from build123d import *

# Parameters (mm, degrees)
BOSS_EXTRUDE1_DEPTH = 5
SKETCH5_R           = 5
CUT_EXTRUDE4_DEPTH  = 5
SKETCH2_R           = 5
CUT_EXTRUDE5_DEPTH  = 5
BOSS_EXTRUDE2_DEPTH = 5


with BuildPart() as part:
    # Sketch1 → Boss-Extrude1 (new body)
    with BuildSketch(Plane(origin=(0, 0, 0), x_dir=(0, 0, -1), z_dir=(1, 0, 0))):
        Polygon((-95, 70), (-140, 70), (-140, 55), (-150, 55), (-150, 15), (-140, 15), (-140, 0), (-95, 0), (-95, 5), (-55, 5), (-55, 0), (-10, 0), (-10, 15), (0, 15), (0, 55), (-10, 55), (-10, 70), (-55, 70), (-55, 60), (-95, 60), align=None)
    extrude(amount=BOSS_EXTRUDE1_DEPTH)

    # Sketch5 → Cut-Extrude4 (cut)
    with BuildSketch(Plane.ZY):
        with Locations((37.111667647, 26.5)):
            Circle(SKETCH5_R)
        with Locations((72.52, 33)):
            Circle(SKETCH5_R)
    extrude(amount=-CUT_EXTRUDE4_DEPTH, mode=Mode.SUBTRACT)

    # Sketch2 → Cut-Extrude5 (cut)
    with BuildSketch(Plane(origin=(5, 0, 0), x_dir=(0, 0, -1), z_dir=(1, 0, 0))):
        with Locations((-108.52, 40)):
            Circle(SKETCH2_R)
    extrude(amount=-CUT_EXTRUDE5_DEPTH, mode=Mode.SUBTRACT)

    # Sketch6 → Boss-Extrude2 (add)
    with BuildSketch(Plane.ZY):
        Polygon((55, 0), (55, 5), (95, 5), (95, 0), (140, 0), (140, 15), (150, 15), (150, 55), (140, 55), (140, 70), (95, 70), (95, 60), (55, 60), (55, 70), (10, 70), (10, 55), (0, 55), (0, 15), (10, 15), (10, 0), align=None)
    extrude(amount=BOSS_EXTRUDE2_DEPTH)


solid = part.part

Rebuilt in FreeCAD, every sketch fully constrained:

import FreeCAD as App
import Part
import Sketcher
Q = App.Units.Quantity

doc = App.newDocument("Part")
body = doc.addObject("PartDesign::Body", "Body")

# Sketch on YZ plane
sketch1 = body.newObject("Sketcher::SketchObject", "Sketch")
sketch1.AttachmentSupport = (doc.getObject("YZ_Plane"), [""])
sketch1.MapMode = "FlatFace"
sketch1.addGeometry(Part.LineSegment(App.Vector(70, 95, 0), App.Vector(70, 140, 0)), False)
sketch1.addGeometry(Part.LineSegment(App.Vector(70, 140, 0), App.Vector(55, 140, 0)), False)
sketch1.addGeometry(Part.LineSegment(App.Vector(55, 140, 0), App.Vector(55, 150, 0)), False)
sketch1.addGeometry(Part.LineSegment(App.Vector(55, 150, 0), App.Vector(15, 150, 0)), False)
sketch1.addGeometry(Part.LineSegment(App.Vector(15, 150, 0), App.Vector(15, 140, 0)), False)
sketch1.addGeometry(Part.LineSegment(App.Vector(15, 140, 0), App.Vector(0, 140, 0)), False)
sketch1.addGeometry(Part.LineSegment(App.Vector(0, 140, 0), App.Vector(0, 95, 0)), False)
sketch1.addGeometry(Part.LineSegment(App.Vector(0, 95, 0), App.Vector(5, 95, 0)), False)
sketch1.addGeometry(Part.LineSegment(App.Vector(5, 95, 0), App.Vector(5, 55, 0)), False)
sketch1.addGeometry(Part.LineSegment(App.Vector(5, 55, 0), App.Vector(0, 55, 0)), False)
sketch1.addGeometry(Part.LineSegment(App.Vector(0, 55, 0), App.Vector(0, 10, 0)), False)
sketch1.addGeometry(Part.LineSegment(App.Vector(0, 10, 0), App.Vector(15, 10, 0)), False)
sketch1.addGeometry(Part.LineSegment(App.Vector(15, 10, 0), App.Vector(15, 0, 0)), False)
sketch1.addGeometry(Part.LineSegment(App.Vector(15, 0, 0), App.Vector(55, 0, 0)), False)
sketch1.addGeometry(Part.LineSegment(App.Vector(55, 0, 0), App.Vector(55, 10, 0)), False)
sketch1.addGeometry(Part.LineSegment(App.Vector(55, 10, 0), App.Vector(70, 10, 0)), False)
sketch1.addGeometry(Part.LineSegment(App.Vector(70, 10, 0), App.Vector(70, 55, 0)), False)
sketch1.addGeometry(Part.LineSegment(App.Vector(70, 55, 0), App.Vector(60, 55, 0)), False)
sketch1.addGeometry(Part.LineSegment(App.Vector(60, 55, 0), App.Vector(60, 95, 0)), False)
sketch1.addGeometry(Part.LineSegment(App.Vector(60, 95, 0), App.Vector(70, 95, 0)), False)
sketch1.addConstraint(Sketcher.Constraint("Coincident", 0, 2, 1, 1))
sketch1.addConstraint(Sketcher.Constraint("Coincident", 1, 2, 2, 1))
sketch1.addConstraint(Sketcher.Constraint("Coincident", 2, 2, 3, 1))
sketch1.addConstraint(Sketcher.Constraint("Coincident", 3, 2, 4, 1))
sketch1.addConstraint(Sketcher.Constraint("Coincident", 4, 2, 5, 1))
sketch1.addConstraint(Sketcher.Constraint("Coincident", 5, 2, 6, 1))
sketch1.addConstraint(Sketcher.Constraint("Coincident", 6, 2, 7, 1))
sketch1.addConstraint(Sketcher.Constraint("Coincident", 7, 2, 8, 1))
sketch1.addConstraint(Sketcher.Constraint("Coincident", 8, 2, 9, 1))
sketch1.addConstraint(Sketcher.Constraint("Coincident", 9, 2, 10, 1))
sketch1.addConstraint(Sketcher.Constraint("Coincident", 10, 2, 11, 1))
sketch1.addConstraint(Sketcher.Constraint("Coincident", 11, 2, 12, 1))
sketch1.addConstraint(Sketcher.Constraint("Coincident", 12, 2, 13, 1))
sketch1.addConstraint(Sketcher.Constraint("Coincident", 13, 2, 14, 1))
sketch1.addConstraint(Sketcher.Constraint("Coincident", 14, 2, 15, 1))
sketch1.addConstraint(Sketcher.Constraint("Coincident", 15, 2, 16, 1))
sketch1.addConstraint(Sketcher.Constraint("Coincident", 16, 2, 17, 1))
sketch1.addConstraint(Sketcher.Constraint("Coincident", 17, 2, 18, 1))
sketch1.addConstraint(Sketcher.Constraint("Coincident", 18, 2, 19, 1))
sketch1.addConstraint(Sketcher.Constraint("Coincident", 19, 2, 0, 1))
sketch1.addConstraint(Sketcher.Constraint("Vertical", 0))
sketch1.addConstraint(Sketcher.Constraint("Horizontal", 1))
sketch1.addConstraint(Sketcher.Constraint("Vertical", 2))
sketch1.addConstraint(Sketcher.Constraint("Horizontal", 3))
sketch1.addConstraint(Sketcher.Constraint("Vertical", 4))
sketch1.addConstraint(Sketcher.Constraint("Horizontal", 5))
sketch1.addConstraint(Sketcher.Constraint("Vertical", 6))
sketch1.addConstraint(Sketcher.Constraint("Horizontal", 7))
sketch1.addConstraint(Sketcher.Constraint("Vertical", 8))
sketch1.addConstraint(Sketcher.Constraint("Horizontal", 9))
sketch1.addConstraint(Sketcher.Constraint("Vertical", 10))
sketch1.addConstraint(Sketcher.Constraint("Horizontal", 11))
sketch1.addConstraint(Sketcher.Constraint("Vertical", 12))
sketch1.addConstraint(Sketcher.Constraint("Horizontal", 13))
sketch1.addConstraint(Sketcher.Constraint("Vertical", 14))
sketch1.addConstraint(Sketcher.Constraint("Horizontal", 15))
sketch1.addConstraint(Sketcher.Constraint("Vertical", 16))
sketch1.addConstraint(Sketcher.Constraint("Horizontal", 17))
sketch1.addConstraint(Sketcher.Constraint("Vertical", 18))
sketch1.addConstraint(Sketcher.Constraint("Horizontal", 19))
sketch1.addConstraint(Sketcher.Constraint("PointOnObject", 5, 2, -2))
sketch1.addConstraint(Sketcher.Constraint("PointOnObject", 9, 2, -2))
sketch1.addConstraint(Sketcher.Constraint("PointOnObject", 12, 2, -1))
sketch1.addConstraint(Sketcher.Constraint("Horizontal", 1, 2, 4, 2))
sketch1.addConstraint(Sketcher.Constraint("Horizontal", 11, 2, 14, 2))
sketch1.addConstraint(Sketcher.Constraint("Horizontal", 9, 2, 16, 2))
sketch1.addConstraint(Sketcher.Constraint("Horizontal", 7, 2, 18, 2))
sketch1.addConstraint(Sketcher.Constraint("Vertical", 4, 2, 11, 2))
sketch1.addConstraint(Sketcher.Constraint("Vertical", 2, 2, 13, 2))
sketch1.addConstraint(Sketcher.Constraint("Vertical", 0, 2, 15, 2))
sketch1.addConstraint(Sketcher.Constraint("Equal", 1, 5))
sketch1.addConstraint(Sketcher.Constraint("Equal", 19, 2))
sketch1.addConstraint(Sketcher.Constraint("Equal", 13, 8))
sketch1.addConstraint(Sketcher.Constraint("Equal", 6, 10))
sketch1.addConstraint(Sketcher.Constraint("Equal", 4, 12))
sketch1.addConstraint(Sketcher.Constraint("DistanceX", 1, 2, 1, 1, Q("15 mm")))
sketch1.addConstraint(Sketcher.Constraint("DistanceX", 3, 2, 3, 1, Q("40 mm")))
sketch1.addConstraint(Sketcher.Constraint("DistanceX", 7, 1, 7, 2, Q("5 mm")))
sketch1.addConstraint(Sketcher.Constraint("DistanceX", 17, 2, 17, 1, Q("10 mm")))
sketch1.addConstraint(Sketcher.Constraint("DistanceY", 0, 1, 0, 2, Q("45 mm")))
pad1 = body.newObject("PartDesign::Pad", "Pad")
pad1.Profile = sketch1
pad1.Length = 5

# Sketch on YZ plane
sketch2 = body.newObject("Sketcher::SketchObject", "Sketch001")
sketch2.AttachmentSupport = (doc.getObject("YZ_Plane"), [""])
sketch2.MapMode = "FlatFace"
sketch2.addGeometry(Part.Circle(App.Vector(26, 37, 0), App.Vector(0, 0, 1), 5), False)
sketch2.addGeometry(Part.Circle(App.Vector(33, 73, 0), App.Vector(0, 0, 1), 5), False)
sketch2.addConstraint(Sketcher.Constraint("Equal", 0, 1))
sketch2.addConstraint(Sketcher.Constraint("Diameter", 0, Q("10 mm")))
sketch2.addConstraint(Sketcher.Constraint("DistanceX", -1, 1, 1, 3, Q("33 mm")))
sketch2.addConstraint(Sketcher.Constraint("DistanceX", -1, 1, 0, 3, Q("26.5 mm")))
sketch2.addConstraint(Sketcher.Constraint("DistanceY", -1, 1, 1, 3, Q("72.52 mm")))
sketch2.addConstraint(Sketcher.Constraint("DistanceY", -1, 1, 0, 3, Q("37.111668 mm")))
pocket1 = body.newObject("PartDesign::Pocket", "Pocket")
pocket1.Profile = sketch2
pocket1.Length = 5
pocket1.Reversed = True

# Sketch on YZ plane
sketch3 = body.newObject("Sketcher::SketchObject", "Sketch002")
sketch3.AttachmentSupport = (doc.getObject("YZ_Plane"), [""])
sketch3.MapMode = "FlatFace"
sketch3.AttachmentOffset = App.Placement(App.Vector(0, 0, 5), App.Rotation())
sketch3.addGeometry(Part.Circle(App.Vector(40, 109, 0), App.Vector(0, 0, 1), 5), False)
sketch3.addConstraint(Sketcher.Constraint("Diameter", 0, Q("10 mm")))
sketch3.addConstraint(Sketcher.Constraint("DistanceX", -1, 1, 0, 3, Q("40 mm")))
sketch3.addConstraint(Sketcher.Constraint("DistanceY", -1, 1, 0, 3, Q("108.52 mm")))
pocket2 = body.newObject("PartDesign::Pocket", "Pocket001")
pocket2.Profile = sketch3
pocket2.Length = 5

# Sketch on YZ plane
sketch4 = body.newObject("Sketcher::SketchObject", "Sketch003")
sketch4.AttachmentSupport = (doc.getObject("YZ_Plane"), [""])
sketch4.MapMode = "FlatFace"
sketch4.addGeometry(Part.LineSegment(App.Vector(0, 55, 0), App.Vector(5, 55, 0)), False)
sketch4.addGeometry(Part.LineSegment(App.Vector(5, 55, 0), App.Vector(5, 95, 0)), False)
sketch4.addGeometry(Part.LineSegment(App.Vector(5, 95, 0), App.Vector(0, 95, 0)), False)
sketch4.addGeometry(Part.LineSegment(App.Vector(0, 95, 0), App.Vector(0, 140, 0)), False)
sketch4.addGeometry(Part.LineSegment(App.Vector(0, 140, 0), App.Vector(15, 140, 0)), False)
sketch4.addGeometry(Part.LineSegment(App.Vector(15, 140, 0), App.Vector(15, 150, 0)), False)
sketch4.addGeometry(Part.LineSegment(App.Vector(15, 150, 0), App.Vector(55, 150, 0)), False)
sketch4.addGeometry(Part.LineSegment(App.Vector(55, 150, 0), App.Vector(55, 140, 0)), False)
sketch4.addGeometry(Part.LineSegment(App.Vector(55, 140, 0), App.Vector(70, 140, 0)), False)
sketch4.addGeometry(Part.LineSegment(App.Vector(70, 140, 0), App.Vector(70, 95, 0)), False)
sketch4.addGeometry(Part.LineSegment(App.Vector(70, 95, 0), App.Vector(60, 95, 0)), False)
sketch4.addGeometry(Part.LineSegment(App.Vector(60, 95, 0), App.Vector(60, 55, 0)), False)
sketch4.addGeometry(Part.LineSegment(App.Vector(60, 55, 0), App.Vector(70, 55, 0)), False)
sketch4.addGeometry(Part.LineSegment(App.Vector(70, 55, 0), App.Vector(70, 10, 0)), False)
sketch4.addGeometry(Part.LineSegment(App.Vector(70, 10, 0), App.Vector(55, 10, 0)), False)
sketch4.addGeometry(Part.LineSegment(App.Vector(55, 10, 0), App.Vector(55, 0, 0)), False)
sketch4.addGeometry(Part.LineSegment(App.Vector(55, 0, 0), App.Vector(15, 0, 0)), False)
sketch4.addGeometry(Part.LineSegment(App.Vector(15, 0, 0), App.Vector(15, 10, 0)), False)
sketch4.addGeometry(Part.LineSegment(App.Vector(15, 10, 0), App.Vector(0, 10, 0)), False)
sketch4.addGeometry(Part.LineSegment(App.Vector(0, 10, 0), App.Vector(0, 55, 0)), False)
sketch4.addConstraint(Sketcher.Constraint("Coincident", 0, 2, 1, 1))
sketch4.addConstraint(Sketcher.Constraint("Coincident", 1, 2, 2, 1))
sketch4.addConstraint(Sketcher.Constraint("Coincident", 2, 2, 3, 1))
sketch4.addConstraint(Sketcher.Constraint("Coincident", 3, 2, 4, 1))
sketch4.addConstraint(Sketcher.Constraint("Coincident", 4, 2, 5, 1))
sketch4.addConstraint(Sketcher.Constraint("Coincident", 5, 2, 6, 1))
sketch4.addConstraint(Sketcher.Constraint("Coincident", 6, 2, 7, 1))
sketch4.addConstraint(Sketcher.Constraint("Coincident", 7, 2, 8, 1))
sketch4.addConstraint(Sketcher.Constraint("Coincident", 8, 2, 9, 1))
sketch4.addConstraint(Sketcher.Constraint("Coincident", 9, 2, 10, 1))
sketch4.addConstraint(Sketcher.Constraint("Coincident", 10, 2, 11, 1))
sketch4.addConstraint(Sketcher.Constraint("Coincident", 11, 2, 12, 1))
sketch4.addConstraint(Sketcher.Constraint("Coincident", 12, 2, 13, 1))
sketch4.addConstraint(Sketcher.Constraint("Coincident", 13, 2, 14, 1))
sketch4.addConstraint(Sketcher.Constraint("Coincident", 14, 2, 15, 1))
sketch4.addConstraint(Sketcher.Constraint("Coincident", 15, 2, 16, 1))
sketch4.addConstraint(Sketcher.Constraint("Coincident", 16, 2, 17, 1))
sketch4.addConstraint(Sketcher.Constraint("Coincident", 17, 2, 18, 1))
sketch4.addConstraint(Sketcher.Constraint("Coincident", 18, 2, 19, 1))
sketch4.addConstraint(Sketcher.Constraint("Coincident", 19, 2, 0, 1))
sketch4.addConstraint(Sketcher.Constraint("Horizontal", 0))
sketch4.addConstraint(Sketcher.Constraint("Vertical", 1))
sketch4.addConstraint(Sketcher.Constraint("Horizontal", 2))
sketch4.addConstraint(Sketcher.Constraint("Vertical", 3))
sketch4.addConstraint(Sketcher.Constraint("Horizontal", 4))
sketch4.addConstraint(Sketcher.Constraint("Vertical", 5))
sketch4.addConstraint(Sketcher.Constraint("Horizontal", 6))
sketch4.addConstraint(Sketcher.Constraint("Vertical", 7))
sketch4.addConstraint(Sketcher.Constraint("Horizontal", 8))
sketch4.addConstraint(Sketcher.Constraint("Vertical", 9))
sketch4.addConstraint(Sketcher.Constraint("Horizontal", 10))
sketch4.addConstraint(Sketcher.Constraint("Vertical", 11))
sketch4.addConstraint(Sketcher.Constraint("Horizontal", 12))
sketch4.addConstraint(Sketcher.Constraint("Vertical", 13))
sketch4.addConstraint(Sketcher.Constraint("Horizontal", 14))
sketch4.addConstraint(Sketcher.Constraint("Vertical", 15))
sketch4.addConstraint(Sketcher.Constraint("Horizontal", 16))
sketch4.addConstraint(Sketcher.Constraint("Vertical", 17))
sketch4.addConstraint(Sketcher.Constraint("Horizontal", 18))
sketch4.addConstraint(Sketcher.Constraint("Vertical", 19))
sketch4.addConstraint(Sketcher.Constraint("PointOnObject", 2, 2, -2))
sketch4.addConstraint(Sketcher.Constraint("PointOnObject", 15, 2, -1))
sketch4.addConstraint(Sketcher.Constraint("PointOnObject", 18, 2, -2))
sketch4.addConstraint(Sketcher.Constraint("Horizontal", 4, 2, 7, 2))
sketch4.addConstraint(Sketcher.Constraint("Horizontal", 2, 2, 9, 2))
sketch4.addConstraint(Sketcher.Constraint("Horizontal", 0, 2, 11, 2))
sketch4.addConstraint(Sketcher.Constraint("Horizontal", 14, 2, 17, 2))
sketch4.addConstraint(Sketcher.Constraint("Vertical", 9, 2, 12, 2))
sketch4.addConstraint(Sketcher.Constraint("Vertical", 7, 2, 14, 2))
sketch4.addConstraint(Sketcher.Constraint("Vertical", 5, 2, 16, 2))
sketch4.addConstraint(Sketcher.Constraint("Equal", 4, 8))
sketch4.addConstraint(Sketcher.Constraint("Equal", 16, 1))
sketch4.addConstraint(Sketcher.Constraint("Equal", 12, 5))
sketch4.addConstraint(Sketcher.Constraint("Equal", 9, 13))
sketch4.addConstraint(Sketcher.Constraint("Equal", 7, 15))
sketch4.addConstraint(Sketcher.Constraint("DistanceX", 0, 1, 0, 2, Q("5 mm")))
sketch4.addConstraint(Sketcher.Constraint("DistanceX", 4, 1, 4, 2, Q("15 mm")))
sketch4.addConstraint(Sketcher.Constraint("DistanceX", 6, 1, 6, 2, Q("40 mm")))
sketch4.addConstraint(Sketcher.Constraint("DistanceX", 10, 2, 10, 1, Q("10 mm")))
sketch4.addConstraint(Sketcher.Constraint("DistanceY", 3, 1, 3, 2, Q("45 mm")))
pad2 = body.newObject("PartDesign::Pad", "Pad001")
pad2.Profile = sketch4
pad2.Length = 5
pad2.Reversed = True

doc.recompute()
